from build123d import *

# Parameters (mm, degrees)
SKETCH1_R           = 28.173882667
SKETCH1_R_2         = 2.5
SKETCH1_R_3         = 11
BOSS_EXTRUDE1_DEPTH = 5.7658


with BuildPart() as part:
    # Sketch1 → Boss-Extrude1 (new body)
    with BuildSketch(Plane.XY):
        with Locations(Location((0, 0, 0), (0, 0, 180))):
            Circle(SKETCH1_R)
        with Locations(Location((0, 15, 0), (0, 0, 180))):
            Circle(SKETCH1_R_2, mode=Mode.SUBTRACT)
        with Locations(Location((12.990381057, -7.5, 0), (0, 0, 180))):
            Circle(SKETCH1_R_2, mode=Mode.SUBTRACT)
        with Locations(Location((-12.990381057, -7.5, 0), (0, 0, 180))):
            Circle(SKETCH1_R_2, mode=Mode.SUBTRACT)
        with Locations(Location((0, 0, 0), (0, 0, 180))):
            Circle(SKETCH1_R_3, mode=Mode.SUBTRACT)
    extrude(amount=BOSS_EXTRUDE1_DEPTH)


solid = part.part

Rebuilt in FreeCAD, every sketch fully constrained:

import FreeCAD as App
import Part
import Sketcher

doc = App.newDocument("Part")
body = doc.addObject("PartDesign::Body", "Body")

sketch1 = body.newObject("Sketcher::SketchObject", "Sketch")
sketch1.AttachmentSupport = (doc.getObject("XY_Plane"), [""])
sketch1.MapMode = "FlatFace"
sketch1.addGeometry(Part.Circle(App.Vector(0, 0, 0), App.Vector(0, 0, 1), 28.2), False)
sketch1.addGeometry(Part.Circle(App.Vector(0, 15, 0), App.Vector(0, 0, 1), 2.5), False)
sketch1.addGeometry(Part.Circle(App.Vector(13, -7.5, 0), App.Vector(0, 0, 1), 2.5), False)
sketch1.addGeometry(Part.Circle(App.Vector(0, 0, 0), App.Vector(0, 0, 1), 11), False)
sketch1.addGeometry(Part.Circle(App.Vector(-13, -7.5, 0), App.Vector(0, 0, 1), 2.5), False)
sketch1.addConstraint(Sketcher.Constraint("Coincident", 0, 3, -1, 1))
sketch1.addConstraint(Sketcher.Constraint("Coincident", 3, 3, -1, 1))
sketch1.addConstraint(Sketcher.Constraint("Equal", 1, 2))
sketch1.addConstraint(Sketcher.Constraint("Equal", 2, 4))
sketch1.addConstraint(Sketcher.Constraint("Symmetric", 2, 3, 4, 3, -2))
sketch1.addConstraint(Sketcher.Constraint("PointOnObject", 1, 3, -2))
sketch1.addConstraint(Sketcher.Constraint("Diameter", 1, 5.0))
sketch1.addConstraint(Sketcher.Constraint("Diameter", 3, 22.0))
sketch1.addConstraint(Sketcher.Constraint("DistanceY", -1, 1, 1, 3, 15.0))
sketch1.addConstraint(Sketcher.Constraint("DistanceY", 2, 3, -1, 1, 7.5))
sketch1.addConstraint(Sketcher.Constraint("Diameter", 0, 56.347765))
sketch1.addConstraint(Sketcher.Constraint("DistanceX", -1, 1, 2, 3, 12.990381))
pad1 = body.newObject("PartDesign::Pad", "Pad")
pad1.Profile = sketch1
pad1.Length = 5.7658

doc.recompute()
